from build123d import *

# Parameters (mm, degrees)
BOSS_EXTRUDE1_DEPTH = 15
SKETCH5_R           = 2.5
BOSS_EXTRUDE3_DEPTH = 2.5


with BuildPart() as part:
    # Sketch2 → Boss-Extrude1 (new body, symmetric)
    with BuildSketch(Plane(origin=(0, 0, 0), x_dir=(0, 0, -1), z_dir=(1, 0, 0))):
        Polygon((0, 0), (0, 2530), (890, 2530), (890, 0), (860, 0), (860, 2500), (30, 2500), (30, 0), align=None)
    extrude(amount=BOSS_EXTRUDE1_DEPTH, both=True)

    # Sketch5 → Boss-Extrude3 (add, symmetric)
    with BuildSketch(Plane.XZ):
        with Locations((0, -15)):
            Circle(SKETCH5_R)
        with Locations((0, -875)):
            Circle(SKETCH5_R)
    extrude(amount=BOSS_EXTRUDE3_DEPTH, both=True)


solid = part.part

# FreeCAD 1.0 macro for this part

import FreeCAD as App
import Part
import Sketcher
Q = App.Units.Quantity


def add_polygon(sketch, points):
    """Adds a closed chain of lines whose ends are joined by coincident constraints."""
    first, n = sketch.GeometryCount, len(points)
    for a, b in zip(points, points[1:] + points[:1]):
        sketch.addGeometry(Part.LineSegment(App.Vector(*a, 0), App.Vector(*b, 0)), False)
    for i in range(n):
        sketch.addConstraint(Sketcher.Constraint("Coincident", first + i, 2, first + (i + 1) % n, 1))

doc = App.newDocument("Part")
params = doc.addObject("Spreadsheet::Sheet", "Params")
for row, (alias, value) in enumerate([
    ("sketch1_width", "2530 mm"),
    ("sketch1_width2", "2500 mm"),
    ("sketch1_height", "30 mm"),
    ("sketch1_height2", "830 mm"),
    ("pad1_length", "30 mm"),
    ("sketch2_diameter", "5 mm"),
    ("pad2_length", "5 mm"),
], start=1):
    params.set(f"A{row}", alias)
    params.set(f"B{row}", "=" + value)
    params.setAlias(f"B{row}", alias)

body = doc.addObject("PartDesign::Body", "Body")

# Sketch on YZ plane
sketch1 = body.newObject("Sketcher::SketchObject", "Sketch")
sketch1.AttachmentSupport = (doc.getObject("YZ_Plane"), [""])
sketch1.MapMode = "FlatFace"
add_polygon(sketch1, [(2530, 0), (0, 0), (0, -30), (2500, -30), (2500, -860), (0, -860), (0, -890), (2530, -890)])  # lines 0-7
sketch1.addConstraint(Sketcher.Constraint("Horizontal", 0))
sketch1.addConstraint(Sketcher.Constraint("Vertical", 1))
sketch1.addConstraint(Sketcher.Constraint("Horizontal", 2))
sketch1.addConstraint(Sketcher.Constraint("Vertical", 3))
sketch1.addConstraint(Sketcher.Constraint("Horizontal", 4))
sketch1.addConstraint(Sketcher.Constraint("Vertical", 5))
sketch1.addConstraint(Sketcher.Constraint("Horizontal", 6))
sketch1.addConstraint(Sketcher.Constraint("Vertical", 7))
sketch1.addConstraint(Sketcher.Constraint("Coincident", 0, 2, -1, 1))
sketch1.addConstraint(Sketcher.Constraint("PointOnObject", 4, 2, -2))
sketch1.addConstraint(Sketcher.Constraint("Equal", 1, 5))
sketch1.addConstraint(Sketcher.Constraint("DistanceX", 0, 2, 0, 1, Q("2530 mm")))
sketch1.addConstraint(Sketcher.Constraint("DistanceX", 2, 1, 2, 2, Q("2500 mm")))
sketch1.addConstraint(Sketcher.Constraint("DistanceY", 1, 2, 1, 1, Q("30 mm")))
sketch1.addConstraint(Sketcher.Constraint("DistanceY", 3, 2, 3, 1, Q("830 mm")))
sketch1.setExpression("Constraints[19]", "Params.sketch1_width")
sketch1.setExpression("Constraints[20]", "Params.sketch1_width2")
sketch1.setExpression("Constraints[21]", "Params.sketch1_height")
sketch1.setExpression("Constraints[22]", "Params.sketch1_height2")
pad1 = body.newObject("PartDesign::Pad", "Pad")
pad1.Profile = sketch1
pad1.setExpression("Length", "Params.pad1_length")
pad1.Midplane = True

# Sketch on XZ plane
sketch2 = body.newObject("Sketcher::SketchObject", "Sketch001")
sketch2.AttachmentSupport = (doc.getObject("XZ_Plane"), [""])
sketch2.MapMode = "FlatFace"
sketch2.addGeometry(Part.Circle(App.Vector(0, -15, 0), App.Vector(0, 0, 1), 2.5), False)
sketch2.addGeometry(Part.Circle(App.Vector(0, -875, 0), App.Vector(0, 0, 1), 2.5), False)
sketch2.addConstraint(Sketcher.Constraint("Equal", 0, 1))
sketch2.addConstraint(Sketcher.Constraint("PointOnObject", 0, 3, -2))
sketch2.addConstraint(Sketcher.Constraint("PointOnObject", 1, 3, -2))
sketch2.addConstraint(Sketcher.Constraint("Diameter", 0, Q("5 mm")))
sketch2.addConstraint(Sketcher.Constraint("DistanceY", 0, 3, -1, 1, Q("15 mm")))
sketch2.addConstraint(Sketcher.Constraint("DistanceY", 1, 3, -1, 1, Q("875 mm")))
sketch2.setExpression("Constraints[3]", "Params.sketch2_diameter")
pad2 = body.newObject("PartDesign::Pad", "Pad001")
pad2.Profile = sketch2
pad2.setExpression("Length", "Params.pad2_length")
pad2.Midplane = True

doc.recompute()
